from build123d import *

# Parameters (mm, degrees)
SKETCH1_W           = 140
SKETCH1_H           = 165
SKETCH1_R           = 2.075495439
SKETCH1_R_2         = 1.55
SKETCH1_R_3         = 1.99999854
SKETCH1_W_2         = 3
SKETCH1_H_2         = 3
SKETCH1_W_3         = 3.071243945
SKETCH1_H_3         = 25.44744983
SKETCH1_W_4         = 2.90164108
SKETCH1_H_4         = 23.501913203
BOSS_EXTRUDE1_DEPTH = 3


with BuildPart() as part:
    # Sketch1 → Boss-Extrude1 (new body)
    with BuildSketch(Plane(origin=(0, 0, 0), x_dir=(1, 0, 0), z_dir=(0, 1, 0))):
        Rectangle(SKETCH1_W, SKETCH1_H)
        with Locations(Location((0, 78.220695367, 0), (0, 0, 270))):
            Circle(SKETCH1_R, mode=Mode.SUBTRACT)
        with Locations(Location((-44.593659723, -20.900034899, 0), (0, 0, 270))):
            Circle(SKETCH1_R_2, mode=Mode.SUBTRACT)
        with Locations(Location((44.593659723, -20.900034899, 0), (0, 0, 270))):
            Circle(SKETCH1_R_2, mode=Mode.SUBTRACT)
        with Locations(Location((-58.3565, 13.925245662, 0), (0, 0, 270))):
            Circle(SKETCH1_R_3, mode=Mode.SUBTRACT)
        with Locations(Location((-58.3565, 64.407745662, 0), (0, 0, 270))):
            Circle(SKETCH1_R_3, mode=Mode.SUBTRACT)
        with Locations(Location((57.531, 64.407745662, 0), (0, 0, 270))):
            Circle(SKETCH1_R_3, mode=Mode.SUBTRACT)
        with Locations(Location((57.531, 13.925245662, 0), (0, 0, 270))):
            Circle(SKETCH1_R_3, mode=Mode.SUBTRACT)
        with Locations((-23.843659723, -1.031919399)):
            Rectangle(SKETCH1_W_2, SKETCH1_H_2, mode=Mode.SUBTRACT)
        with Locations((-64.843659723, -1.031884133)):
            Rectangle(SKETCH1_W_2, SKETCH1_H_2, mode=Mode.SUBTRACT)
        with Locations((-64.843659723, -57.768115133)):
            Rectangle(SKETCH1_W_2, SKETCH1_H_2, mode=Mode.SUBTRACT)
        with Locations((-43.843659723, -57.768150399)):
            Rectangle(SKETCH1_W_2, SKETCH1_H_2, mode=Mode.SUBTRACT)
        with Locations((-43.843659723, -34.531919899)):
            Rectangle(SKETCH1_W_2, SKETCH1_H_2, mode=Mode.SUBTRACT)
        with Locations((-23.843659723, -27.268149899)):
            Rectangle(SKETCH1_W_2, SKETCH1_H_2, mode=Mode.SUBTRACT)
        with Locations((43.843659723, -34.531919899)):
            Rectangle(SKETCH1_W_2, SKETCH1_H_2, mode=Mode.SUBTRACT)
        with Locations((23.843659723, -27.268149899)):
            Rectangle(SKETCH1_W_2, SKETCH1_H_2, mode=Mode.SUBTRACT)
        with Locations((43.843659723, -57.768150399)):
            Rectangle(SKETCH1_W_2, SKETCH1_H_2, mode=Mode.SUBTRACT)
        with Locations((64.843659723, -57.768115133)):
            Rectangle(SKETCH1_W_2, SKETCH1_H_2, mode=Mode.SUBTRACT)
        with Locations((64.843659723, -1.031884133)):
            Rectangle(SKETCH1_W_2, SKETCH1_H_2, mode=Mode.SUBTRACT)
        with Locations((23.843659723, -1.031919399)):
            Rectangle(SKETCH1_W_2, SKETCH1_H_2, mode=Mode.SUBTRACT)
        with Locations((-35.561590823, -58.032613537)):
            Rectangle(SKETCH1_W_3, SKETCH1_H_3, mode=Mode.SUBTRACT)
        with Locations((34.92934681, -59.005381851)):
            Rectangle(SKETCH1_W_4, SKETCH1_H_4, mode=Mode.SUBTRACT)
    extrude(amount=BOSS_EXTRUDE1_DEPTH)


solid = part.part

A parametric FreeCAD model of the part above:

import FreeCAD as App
import Part
import Sketcher

V = App.Vector
Q = App.Units.Quantity


def add_polygon(sketch, points):
    """Adds a closed chain of lines whose ends are joined by coincident constraints."""
    first, n = sketch.GeometryCount, len(points)
    for a, b in zip(points, points[1:] + points[:1]):
        sketch.addGeometry(Part.LineSegment(App.Vector(*a, 0), App.Vector(*b, 0)), False)
    for i in range(n):
        sketch.addConstraint(Sketcher.Constraint("Coincident", first + i, 2, first + (i + 1) % n, 1))

doc = App.newDocument("Part")
body = doc.addObject("PartDesign::Body", "Body")

sketch1 = doc.addObject("Sketcher::SketchObject", "Sketch")
body.addObject(sketch1)
sketch1.AttachmentSupport = (doc.XZ_Plane, [""])
sketch1.MapMode = "FlatFace"
add_polygon(sketch1, [(-70, -82.5), (-70, 82.5), (70, 82.5), (70, -82.5)])
add_polygon(sketch1, [(-63.3, 59.3), (-66.3, 59.3), (-66.3, 56.3), (-63.3, 56.3)])
add_polygon(sketch1, [(-42.3, 59.3), (-45.3, 59.3), (-45.3, 56.3), (-42.3, 56.3)])
add_polygon(sketch1, [(-34, 70.8), (-37.1, 70.8), (-37.1, 45.3), (-34, 45.3)])
add_polygon(sketch1, [(-42.3, 36), (-45.3, 36), (-45.3, 33), (-42.3, 33)])
sketch1.addGeometry(Part.Circle(V(-44.6, 20.9, 0), V(0, 0, 1), 1.6), False)
add_polygon(sketch1, [(-63.3, 2.5), (-66.3, 2.5), (-66.3, -0.5), (-63.3, -0.5)])
add_polygon(sketch1, [(-22.3, 28.8), (-25.3, 28.8), (-25.3, 25.8), (-22.3, 25.8)])
add_polygon(sketch1, [(-22.3, 2.5), (-25.3, 2.5), (-25.3, -0.5), (-22.3, -0.5)])
add_polygon(sketch1, [(36.4, 70.8), (33.5, 70.8), (33.5, 47.3), (36.4, 47.3)])
add_polygon(sketch1, [(45.3, 59.3), (42.3, 59.3), (42.3, 56.3), (45.3, 56.3)])
add_polygon(sketch1, [(66.3, 59.3), (63.3, 59.3), (63.3, 56.3), (66.3, 56.3)])
add_polygon(sketch1, [(45.3, 36), (42.3, 36), (42.3, 33), (45.3, 33)])
add_polygon(sketch1, [(25.3, 28.8), (22.3, 28.8), (22.3, 25.8), (25.3, 25.8)])
add_polygon(sketch1, [(25.3, 2.5), (22.3, 2.5), (22.3, -0.5), (25.3, -0.5)])
sketch1.addGeometry(Part.Circle(V(44.6, 20.9, 0), V(0, 0, 1), 1.6), False)
add_polygon(sketch1, [(66.3, 2.5), (63.3, 2.5), (63.3, -0.5), (66.3, -0.5)])
sketch1.addGeometry(Part.Circle(V(-58.4, -13.9, 0), V(0, 0, 1), 2), False)
sketch1.addGeometry(Part.Circle(V(-58.4, -64.4, 0), V(0, 0, 1), 2), False)
sketch1.addGeometry(Part.Circle(V(57.5, -13.9, 0), V(0, 0, 1), 2), False)
sketch1.addGeometry(Part.Circle(V(0, -78.2, 0), V(0, 0, 1), 2.1), False)
sketch1.addGeometry(Part.Circle(V(57.5, -64.4, 0), V(0, 0, 1), 2), False)
sketch1.addConstraint([
    Sketcher.Constraint("Vertical", 0),
    Sketcher.Constraint("Horizontal", 1),
    Sketcher.Constraint("Vertical", 2),
    Sketcher.Constraint("Horizontal", 3),
    Sketcher.Constraint("Horizontal", 4),
    Sketcher.Constraint("Vertical", 5),
    Sketcher.Constraint("Horizontal", 6),
    Sketcher.Constraint("Vertical", 7),
    Sketcher.Constraint("Horizontal", 8),
    Sketcher.Constraint("Vertical", 9),
    Sketcher.Constraint("Horizontal", 10),
    Sketcher.Constraint("Vertical", 11),
    Sketcher.Constraint("Horizontal", 12),
    Sketcher.Constraint("Vertical", 13),
    Sketcher.Constraint("Horizontal", 14),
    Sketcher.Constraint("Vertical", 15),
    Sketcher.Constraint("Horizontal", 16),
    Sketcher.Constraint("Vertical", 17),
    Sketcher.Constraint("Horizontal", 18),
    Sketcher.Constraint("Vertical", 19),
    Sketcher.Constraint("Horizontal", 21),
    Sketcher.Constraint("Vertical", 22),
    Sketcher.Constraint("Horizontal", 23),
    Sketcher.Constraint("Vertical", 24),
    Sketcher.Constraint("Horizontal", 25),
    Sketcher.Constraint("Vertical", 26),
    Sketcher.Constraint("Horizontal", 27),
    Sketcher.Constraint("Vertical", 28),
    Sketcher.Constraint("Horizontal", 29),
    Sketcher.Constraint("Vertical", 30),
    Sketcher.Constraint("Horizontal", 31),
    Sketcher.Constraint("Vertical", 32),
    Sketcher.Constraint("Horizontal", 33),
    Sketcher.Constraint("Vertical", 34),
    Sketcher.Constraint("Horizontal", 35),
    Sketcher.Constraint("Vertical", 36),
    Sketcher.Constraint("Horizontal", 37),
    Sketcher.Constraint("Vertical", 38),
    Sketcher.Constraint("Horizontal", 39),
    Sketcher.Constraint("Vertical", 40),
    Sketcher.Constraint("Horizontal", 41),
    Sketcher.Constraint("Vertical", 42),
    Sketcher.Constraint("Horizontal", 43),
    Sketcher.Constraint("Vertical", 44),
    Sketcher.Constraint("Horizontal", 45),
    Sketcher.Constraint("Vertical", 46),
    Sketcher.Constraint("Horizontal", 47),
    Sketcher.Constraint("Vertical", 48),
    Sketcher.Constraint("Horizontal", 49),
    Sketcher.Constraint("Vertical", 50),
    Sketcher.Constraint("Horizontal", 51),
    Sketcher.Constraint("Vertical", 52),
    Sketcher.Constraint("Horizontal", 53),
    Sketcher.Constraint("Vertical", 54),
    Sketcher.Constraint("Horizontal", 55),
    Sketcher.Constraint("Vertical", 56),
    Sketcher.Constraint("Horizontal", 58),
    Sketcher.Constraint("Vertical", 59),
    Sketcher.Constraint("Horizontal", 60),
    Sketcher.Constraint("Vertical", 61),
    Sketcher.Constraint("Equal", 20, 57),
    Sketcher.Constraint("Equal", 62, 63),
    Sketcher.Constraint("Equal", 63, 64),
    Sketcher.Constraint("Equal", 64, 66),
    Sketcher.Constraint("Symmetric", 0, 2, 2, 2, -1, 1),
    Sketcher.Constraint("Symmetric", 20, 3, 57, 3, -2),
    Sketcher.Constraint("Symmetric", 11, 2, 37, 2, -2),
    Sketcher.Constraint("Symmetric", 9, 2, 39, 2, -2),
    Sketcher.Constraint("Symmetric", 7, 2, 41, 2, -2),
    Sketcher.Constraint("Symmetric", 5, 2, 43, 2, -2),
    Sketcher.Constraint("Symmetric", 19, 2, 45, 2, -2),
    Sketcher.Constraint("Symmetric", 17, 2, 47, 2, -2),
    Sketcher.Constraint("Symmetric", 28, 2, 49, 2, -2),
    Sketcher.Constraint("Symmetric", 26, 2, 51, 2, -2),
    Sketcher.Constraint("Symmetric", 32, 2, 53, 2, -2),
    Sketcher.Constraint("Symmetric", 30, 2, 55, 2, -2),
    Sketcher.Constraint("Symmetric", 24, 2, 58, 2, -2),
    Sketcher.Constraint("Symmetric", 22, 2, 60, 2, -2),
    Sketcher.Constraint("PointOnObject", 65, 3, -2),
    Sketcher.Constraint("Horizontal", 62, 3, 64, 3),
    Sketcher.Constraint("Horizontal", 63, 3, 66, 3),
    Sketcher.Constraint("Horizontal", 15, 2, 33, 2),
    Sketcher.Constraint("Vertical", 62, 3, 63, 3),
    Sketcher.Constraint("Vertical", 64, 3, 66, 3),
    Sketcher.Constraint("Vertical", 9, 2, 16, 2),
    Sketcher.Constraint("Vertical", 11, 2, 18, 2),
    Sketcher.Constraint("Vertical", 5, 2, 21, 2),
    Sketcher.Constraint("Vertical", 7, 2, 23, 2),
    Sketcher.Constraint("Vertical", 26, 2, 29, 2),
    Sketcher.Constraint("Vertical", 28, 2, 31, 2),
    Sketcher.Constraint("Equal", 6, 8),
    Sketcher.Constraint("Equal", 23, 25),
    Sketcher.Constraint("Equal", 60, 5),
    Sketcher.Constraint("Equal", 7, 9),
    Sketcher.Constraint("Equal", 11, 17),
    Sketcher.Constraint("Equal", 19, 22),
    Sketcher.Constraint("Equal", 24, 26),
    Sketcher.Constraint("Equal", 28, 30),
    Sketcher.Constraint("Diameter", 20, Q("3.1 mm")),
    Sketcher.Constraint("DistanceX", 1, 1, 1, 2, Q("140 mm")),
    Sketcher.Constraint("DistanceX", 4, 2, 4, 1, Q("3 mm")),
    Sketcher.Constraint("DistanceY", 0, 1, 0, 2, Q("165 mm")),
    Sketcher.Constraint("Diameter", 65, Q("4.150991 mm")),
    Sketcher.Constraint("Diameter", 62, Q("3.999997 mm")),
    Sketcher.Constraint("DistanceX", -1, 1, 64, 3, Q("57.531 mm")),
    Sketcher.Constraint("DistanceX", 33, 2, 33, 1, Q("2.901641 mm")),
    Sketcher.Constraint("DistanceY", 13, 2, 13, 1, Q("25.44745 mm")),
    Sketcher.Constraint("DistanceX", 62, 3, -1, 1, Q("58.3565 mm")),
    Sketcher.Constraint("DistanceX", 12, 2, 12, 1, Q("3.071244 mm")),
    Sketcher.Constraint("DistanceY", 34, 2, 34, 1, Q("23.501913 mm")),
    Sketcher.Constraint("DistanceX", 20, 3, -1, 1, Q("44.59366 mm")),
    Sketcher.Constraint("DistanceX", 4, 2, -1, 1, Q("66.34366 mm")),
    Sketcher.Constraint("DistanceX", 8, 2, -1, 1, Q("45.34366 mm")),
    Sketcher.Constraint("DistanceY", -1, 1, 8, 2, Q("59.26815 mm")),
    Sketcher.Constraint("DistanceY", -1, 1, 12, 2, Q("70.756338 mm")),
    Sketcher.Constraint("DistanceX", 14, 2, -1, 1, Q("34.025969 mm")),
    Sketcher.Constraint("DistanceY", -1, 1, 16, 2, Q("36.03192 mm")),
    Sketcher.Constraint("DistanceX", 25, 2, -1, 1, Q("25.34366 mm")),
    Sketcher.Constraint("DistanceY", -1, 1, 25, 2, Q("28.76815 mm")),
    Sketcher.Constraint("DistanceY", -1, 1, 29, 2, Q("2.531919 mm")),
    Sketcher.Constraint("DistanceY", -1, 1, 20, 3, Q("20.900035 mm")),
    Sketcher.Constraint("DistanceY", 62, 3, -1, 1, Q("13.925246 mm")),
    Sketcher.Constraint("DistanceY", 63, 3, -1, 1, Q("64.407746 mm")),
    Sketcher.Constraint("DistanceY", 65, 3, -1, 1, Q("78.220695 mm")),
    Sketcher.Constraint("DistanceY", -1, 1, 4, 2, Q("59.268115 mm")),
    Sketcher.Constraint("DistanceY", -1, 1, 21, 2, Q("2.531884 mm")),
    Sketcher.Constraint("DistanceX", -1, 1, 33, 2, Q("33.478526 mm")),
])
pad1 = doc.addObject("PartDesign::Pad", "Pad")
body.addObject(pad1)
pad1.Profile = sketch1
pad1.Length = 3
pad1.Reversed = True

doc.recompute()
